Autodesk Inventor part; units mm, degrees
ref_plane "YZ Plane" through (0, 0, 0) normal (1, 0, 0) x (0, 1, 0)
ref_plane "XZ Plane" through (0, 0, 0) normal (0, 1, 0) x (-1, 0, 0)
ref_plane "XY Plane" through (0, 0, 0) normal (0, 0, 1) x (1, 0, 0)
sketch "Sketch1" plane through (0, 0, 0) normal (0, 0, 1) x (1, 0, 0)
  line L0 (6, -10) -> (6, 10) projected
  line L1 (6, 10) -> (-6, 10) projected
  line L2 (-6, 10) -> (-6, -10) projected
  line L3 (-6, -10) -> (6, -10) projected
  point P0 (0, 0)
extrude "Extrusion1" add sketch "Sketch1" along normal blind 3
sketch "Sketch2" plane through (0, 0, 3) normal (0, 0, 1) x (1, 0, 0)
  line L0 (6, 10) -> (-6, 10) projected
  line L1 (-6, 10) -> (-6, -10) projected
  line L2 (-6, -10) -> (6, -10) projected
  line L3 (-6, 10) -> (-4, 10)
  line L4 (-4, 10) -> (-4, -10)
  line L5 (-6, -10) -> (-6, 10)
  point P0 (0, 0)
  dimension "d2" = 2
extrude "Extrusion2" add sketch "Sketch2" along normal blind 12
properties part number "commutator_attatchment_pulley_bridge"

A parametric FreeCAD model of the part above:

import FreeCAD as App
import Part
import Sketcher

V = App.Vector
Q = App.Units.Quantity


def add_polygon(sketch, points):
    """Adds a closed chain of lines whose ends are joined by coincident constraints."""
    first, n = sketch.GeometryCount, len(points)
    for a, b in zip(points, points[1:] + points[:1]):
        sketch.addGeometry(Part.LineSegment(App.Vector(*a, 0), App.Vector(*b, 0)), False)
    for i in range(n):
        sketch.addConstraint(Sketcher.Constraint("Coincident", first + i, 2, first + (i + 1) % n, 1))

doc = App.newDocument("Part")
params = doc.addObject("Spreadsheet::Sheet", "Params")
for row, (alias, value) in enumerate([
    ("sketch1_width", "12 mm"),
    ("sketch1_height", "20 mm"),
    ("pad1_length", "3 mm"),
    ("sketch2_width", "2 mm"),
    ("sketch2_height", "20 mm"),
    ("pad2_length", "12 mm"),
], start=1):
    params.set(f"A{row}", alias)
    params.set(f"B{row}", "=" + value)
    params.setAlias(f"B{row}", alias)

body = doc.addObject("PartDesign::Body", "Body")

# Sketch on XY plane
sketch1 = doc.addObject("Sketcher::SketchObject", "Sketch")
body.addObject(sketch1)
sketch1.AttachmentSupport = (doc.XY_Plane, [""])
sketch1.MapMode = "FlatFace"
add_polygon(sketch1, [(-6, -10), (6, -10), (6, 10), (-6, 10)])  # lines 0-3
sketch1.addConstraint([
    Sketcher.Constraint("Horizontal", 0),
    Sketcher.Constraint("Vertical", 1),
    Sketcher.Constraint("Horizontal", 2),
    Sketcher.Constraint("Vertical", 3),
    Sketcher.Constraint("Symmetric", 0, 2, 2, 2, -1, 1),
    Sketcher.Constraint("DistanceX", 0, 1, 0, 2, Q("12 mm")),
    Sketcher.Constraint("DistanceY", 1, 1, 1, 2, Q("20 mm")),
])
sketch1.setExpression("Constraints[9]", "Params.sketch1_width")
sketch1.setExpression("Constraints[10]", "Params.sketch1_height")
pad1 = doc.addObject("PartDesign::Pad", "Pad")
body.addObject(pad1)
pad1.Profile = sketch1
pad1.setExpression("Length", "Params.pad1_length")

# Sketch on XY plane
sketch2 = doc.addObject("Sketcher::SketchObject", "Sketch001")
body.addObject(sketch2)
sketch2.AttachmentSupport = (doc.XY_Plane, [""])
sketch2.MapMode = "FlatFace"
sketch2.AttachmentOffset = App.Placement(V(0, 0, 3), App.Rotation())
add_polygon(sketch2, [(-4, -10), (-4, 10), (-6, 10), (-6, -10)])  # lines 0-3
sketch2.addConstraint([
    Sketcher.Constraint("Vertical", 0),
    Sketcher.Constraint("Horizontal", 1),
    Sketcher.Constraint("Vertical", 2),
    Sketcher.Constraint("Horizontal", 3),
    Sketcher.Constraint("DistanceX", 1, 2, 1, 1, Q("2 mm")),
    Sketcher.Constraint("DistanceY", 0, 1, 0, 2, Q("20 mm")),
    Sketcher.Constraint("DistanceX", 0, 2, -1, 1, Q("4 mm")),
    Sketcher.Constraint("DistanceY", -1, 1, 0, 2, Q("10 mm")),
])
sketch2.setExpression("Constraints[8]", "Params.sketch2_width")
sketch2.setExpression("Constraints[9]", "Params.sketch2_height")
pad2 = doc.addObject("PartDesign::Pad", "Pad001")
body.addObject(pad2)
pad2.Profile = sketch2
pad2.setExpression("Length", "Params.pad2_length")

doc.recompute()
